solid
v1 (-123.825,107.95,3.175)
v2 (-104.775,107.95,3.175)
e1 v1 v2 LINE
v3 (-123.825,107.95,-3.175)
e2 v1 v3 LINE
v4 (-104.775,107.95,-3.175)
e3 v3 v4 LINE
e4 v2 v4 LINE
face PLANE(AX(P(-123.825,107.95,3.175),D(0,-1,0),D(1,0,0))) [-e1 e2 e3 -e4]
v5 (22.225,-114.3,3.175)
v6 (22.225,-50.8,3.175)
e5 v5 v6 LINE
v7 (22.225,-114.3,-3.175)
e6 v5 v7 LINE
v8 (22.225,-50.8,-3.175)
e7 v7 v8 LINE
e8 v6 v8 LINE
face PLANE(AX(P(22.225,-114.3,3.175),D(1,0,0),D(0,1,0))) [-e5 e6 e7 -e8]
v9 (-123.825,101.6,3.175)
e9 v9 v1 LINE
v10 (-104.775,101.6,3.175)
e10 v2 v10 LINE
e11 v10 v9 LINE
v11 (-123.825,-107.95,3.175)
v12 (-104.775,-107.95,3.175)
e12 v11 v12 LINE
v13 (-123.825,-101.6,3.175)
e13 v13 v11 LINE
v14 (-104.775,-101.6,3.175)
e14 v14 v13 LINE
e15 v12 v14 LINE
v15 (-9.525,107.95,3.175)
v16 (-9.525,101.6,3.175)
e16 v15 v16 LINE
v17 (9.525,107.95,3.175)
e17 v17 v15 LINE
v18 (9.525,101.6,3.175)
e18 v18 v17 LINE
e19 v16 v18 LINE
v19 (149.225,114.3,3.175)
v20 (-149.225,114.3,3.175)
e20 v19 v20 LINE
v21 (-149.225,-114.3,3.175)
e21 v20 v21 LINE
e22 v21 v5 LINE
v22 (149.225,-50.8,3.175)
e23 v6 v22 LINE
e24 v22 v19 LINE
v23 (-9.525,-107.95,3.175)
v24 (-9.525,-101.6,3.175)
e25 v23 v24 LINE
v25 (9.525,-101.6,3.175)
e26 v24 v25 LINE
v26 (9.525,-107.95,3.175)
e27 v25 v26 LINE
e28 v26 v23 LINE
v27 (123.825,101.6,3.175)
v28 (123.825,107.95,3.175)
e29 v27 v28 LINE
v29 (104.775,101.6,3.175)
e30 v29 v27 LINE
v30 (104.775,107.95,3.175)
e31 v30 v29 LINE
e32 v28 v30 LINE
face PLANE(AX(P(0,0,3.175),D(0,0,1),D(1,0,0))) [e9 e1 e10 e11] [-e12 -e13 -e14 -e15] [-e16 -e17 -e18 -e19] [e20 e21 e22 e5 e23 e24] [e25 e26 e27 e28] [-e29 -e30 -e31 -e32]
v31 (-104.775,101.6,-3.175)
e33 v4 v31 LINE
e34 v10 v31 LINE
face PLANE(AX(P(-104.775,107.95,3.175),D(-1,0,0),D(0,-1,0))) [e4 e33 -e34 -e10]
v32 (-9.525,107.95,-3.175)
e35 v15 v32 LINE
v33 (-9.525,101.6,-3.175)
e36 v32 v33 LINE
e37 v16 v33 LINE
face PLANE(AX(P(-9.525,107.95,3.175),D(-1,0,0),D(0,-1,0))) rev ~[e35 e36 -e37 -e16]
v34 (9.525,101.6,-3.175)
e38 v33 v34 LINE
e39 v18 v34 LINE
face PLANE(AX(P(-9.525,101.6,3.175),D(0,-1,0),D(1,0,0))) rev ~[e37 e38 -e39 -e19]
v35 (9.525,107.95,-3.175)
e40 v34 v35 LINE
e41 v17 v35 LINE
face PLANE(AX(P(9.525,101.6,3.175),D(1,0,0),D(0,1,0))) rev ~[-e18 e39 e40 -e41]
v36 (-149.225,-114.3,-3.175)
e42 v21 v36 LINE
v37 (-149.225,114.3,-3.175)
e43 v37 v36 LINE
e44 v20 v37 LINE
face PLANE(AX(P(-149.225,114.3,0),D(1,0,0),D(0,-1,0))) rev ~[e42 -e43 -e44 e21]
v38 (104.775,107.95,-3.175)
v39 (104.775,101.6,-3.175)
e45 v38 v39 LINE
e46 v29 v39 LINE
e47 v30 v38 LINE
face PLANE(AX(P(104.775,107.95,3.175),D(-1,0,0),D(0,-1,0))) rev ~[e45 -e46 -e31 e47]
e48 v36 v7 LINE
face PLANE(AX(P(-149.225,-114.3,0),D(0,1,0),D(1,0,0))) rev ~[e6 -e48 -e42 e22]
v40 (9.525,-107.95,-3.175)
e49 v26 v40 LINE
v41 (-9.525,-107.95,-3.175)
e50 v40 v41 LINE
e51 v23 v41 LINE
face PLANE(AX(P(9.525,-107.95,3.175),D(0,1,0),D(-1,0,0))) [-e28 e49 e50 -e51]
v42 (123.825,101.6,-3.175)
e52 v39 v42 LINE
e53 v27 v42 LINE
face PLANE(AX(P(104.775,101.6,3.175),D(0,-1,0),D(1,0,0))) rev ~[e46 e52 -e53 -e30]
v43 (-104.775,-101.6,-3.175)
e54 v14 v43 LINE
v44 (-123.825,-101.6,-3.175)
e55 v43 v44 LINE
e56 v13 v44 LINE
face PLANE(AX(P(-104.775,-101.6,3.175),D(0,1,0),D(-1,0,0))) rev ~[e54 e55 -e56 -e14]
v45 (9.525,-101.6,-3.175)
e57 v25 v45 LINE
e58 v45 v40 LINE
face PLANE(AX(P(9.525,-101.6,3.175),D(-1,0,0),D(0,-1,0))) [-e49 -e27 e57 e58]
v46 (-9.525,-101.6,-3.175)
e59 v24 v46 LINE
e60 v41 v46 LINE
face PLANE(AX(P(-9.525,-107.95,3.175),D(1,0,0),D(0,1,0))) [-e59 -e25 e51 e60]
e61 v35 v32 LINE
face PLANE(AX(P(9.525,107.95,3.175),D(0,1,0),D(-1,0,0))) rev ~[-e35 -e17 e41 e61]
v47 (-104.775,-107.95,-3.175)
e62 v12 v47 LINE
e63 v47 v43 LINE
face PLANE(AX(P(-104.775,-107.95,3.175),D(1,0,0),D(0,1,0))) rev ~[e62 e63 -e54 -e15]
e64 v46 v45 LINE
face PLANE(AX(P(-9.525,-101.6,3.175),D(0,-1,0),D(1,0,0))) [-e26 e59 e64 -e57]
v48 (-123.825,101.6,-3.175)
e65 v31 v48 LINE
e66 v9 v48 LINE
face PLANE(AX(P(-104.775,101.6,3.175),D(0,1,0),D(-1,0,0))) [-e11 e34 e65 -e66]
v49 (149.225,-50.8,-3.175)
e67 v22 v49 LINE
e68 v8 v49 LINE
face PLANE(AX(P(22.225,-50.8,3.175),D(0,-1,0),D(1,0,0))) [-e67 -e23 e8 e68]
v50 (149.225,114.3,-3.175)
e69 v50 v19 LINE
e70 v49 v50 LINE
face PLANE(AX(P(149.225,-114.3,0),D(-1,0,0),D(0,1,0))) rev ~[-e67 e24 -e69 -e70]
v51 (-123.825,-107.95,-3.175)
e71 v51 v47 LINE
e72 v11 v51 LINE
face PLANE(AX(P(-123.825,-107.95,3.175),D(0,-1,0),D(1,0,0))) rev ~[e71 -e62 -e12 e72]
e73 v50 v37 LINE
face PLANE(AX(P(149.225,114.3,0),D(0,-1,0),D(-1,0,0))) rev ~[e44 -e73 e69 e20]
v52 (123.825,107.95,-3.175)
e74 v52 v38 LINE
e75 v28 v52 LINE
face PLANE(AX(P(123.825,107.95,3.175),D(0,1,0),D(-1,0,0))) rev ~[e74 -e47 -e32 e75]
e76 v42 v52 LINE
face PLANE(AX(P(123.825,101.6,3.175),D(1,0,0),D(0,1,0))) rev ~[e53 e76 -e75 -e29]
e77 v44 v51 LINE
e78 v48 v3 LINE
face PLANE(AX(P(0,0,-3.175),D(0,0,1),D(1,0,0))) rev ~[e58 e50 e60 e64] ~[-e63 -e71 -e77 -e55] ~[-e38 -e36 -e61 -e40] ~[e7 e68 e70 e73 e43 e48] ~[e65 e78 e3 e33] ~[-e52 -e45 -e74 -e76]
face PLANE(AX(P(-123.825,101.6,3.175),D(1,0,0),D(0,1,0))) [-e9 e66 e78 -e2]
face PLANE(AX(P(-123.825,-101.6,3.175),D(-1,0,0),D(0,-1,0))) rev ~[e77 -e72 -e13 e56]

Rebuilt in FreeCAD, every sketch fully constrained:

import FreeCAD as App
import Part
import Sketcher
from FreeCAD import Vector
Q = App.Units.Quantity


def add_polygon(sketch, points):
    """Adds a closed chain of lines whose ends are joined by coincident constraints."""
    first, n = sketch.GeometryCount, len(points)
    for a, b in zip(points, points[1:] + points[:1]):
        sketch.addGeometry(Part.LineSegment(App.Vector(*a, 0), App.Vector(*b, 0)), False)
    for i in range(n):
        sketch.addConstraint(Sketcher.Constraint("Coincident", first + i, 2, first + (i + 1) % n, 1))

doc = App.newDocument("Part")
body = doc.addObject("PartDesign::Body", "Body")

# Sketch on XY plane
sketch1 = body.newObject("Sketcher::SketchObject", "Sketch")
sketch1.AttachmentSupport = (doc.getObject("XY_Plane"), [""])
sketch1.MapMode = "FlatFace"
add_polygon(sketch1, [(-149, 114), (-149, -114), (149, -114), (149, 114)])  # lines 0-3
sketch1.addConstraint(Sketcher.Constraint("Vertical", 0))
sketch1.addConstraint(Sketcher.Constraint("Horizontal", 1))
sketch1.addConstraint(Sketcher.Constraint("Vertical", 2))
sketch1.addConstraint(Sketcher.Constraint("Horizontal", 3))
sketch1.addConstraint(Sketcher.Constraint("Symmetric", 0, 2, 2, 2, -1, 1))
sketch1.addConstraint(Sketcher.Constraint("DistanceY", 0, 2, 0, 1, Q("9 in")))
sketch1.addConstraint(Sketcher.Constraint("DistanceX", 0, 2, -1, 1, Q("5.875 in")))
pad1 = body.newObject("PartDesign::Pad", "Pad")
pad1.Profile = sketch1
pad1.Length = Q("0.25 in")
pad1.Midplane = True

# Sketch on XY plane
sketch2 = body.newObject("Sketcher::SketchObject", "Sketch001")
sketch2.AttachmentSupport = (doc.getObject("XY_Plane"), [""])
sketch2.MapMode = "FlatFace"
sketch2.AttachmentOffset = App.Placement(Vector(0, 0, 0.125 * 25.4), App.Rotation())
add_polygon(sketch2, [(-105, 108), (-124, 108), (-124, 102), (-105, 102)])  # lines 0-3
add_polygon(sketch2, [(10, 102), (10, 108), (-10, 108), (-10, 102)])  # lines 4-7
add_polygon(sketch2, [(124, 102), (124, 108), (105, 108), (105, 102)])  # lines 8-11
add_polygon(sketch2, [(-124, -102), (-124, -108), (-105, -108), (-105, -102)])  # lines 12-15
add_polygon(sketch2, [(-10, -108), (10, -108), (10, -102), (-10, -102)])  # lines 16-19
add_polygon(sketch2, [(105, -108), (124, -108), (124, -102), (105, -102)])  # lines 20-23
sketch2.addConstraint(Sketcher.Constraint("Horizontal", 0))
sketch2.addConstraint(Sketcher.Constraint("Vertical", 1))
sketch2.addConstraint(Sketcher.Constraint("Horizontal", 2))
sketch2.addConstraint(Sketcher.Constraint("Vertical", 3))
sketch2.addConstraint(Sketcher.Constraint("Vertical", 4))
sketch2.addConstraint(Sketcher.Constraint("Horizontal", 5))
sketch2.addConstraint(Sketcher.Constraint("Vertical", 6))
sketch2.addConstraint(Sketcher.Constraint("Horizontal", 7))
sketch2.addConstraint(Sketcher.Constraint("Vertical", 8))
sketch2.addConstraint(Sketcher.Constraint("Horizontal", 9))
sketch2.addConstraint(Sketcher.Constraint("Vertical", 10))
sketch2.addConstraint(Sketcher.Constraint("Horizontal", 11))
sketch2.addConstraint(Sketcher.Constraint("Vertical", 12))
sketch2.addConstraint(Sketcher.Constraint("Horizontal", 13))
sketch2.addConstraint(Sketcher.Constraint("Vertical", 14))
sketch2.addConstraint(Sketcher.Constraint("Horizontal", 15))
sketch2.addConstraint(Sketcher.Constraint("Horizontal", 16))
sketch2.addConstraint(Sketcher.Constraint("Vertical", 17))
sketch2.addConstraint(Sketcher.Constraint("Horizontal", 18))
sketch2.addConstraint(Sketcher.Constraint("Vertical", 19))
sketch2.addConstraint(Sketcher.Constraint("Horizontal", 20))
sketch2.addConstraint(Sketcher.Constraint("Vertical", 21))
sketch2.addConstraint(Sketcher.Constraint("Horizontal", 22))
sketch2.addConstraint(Sketcher.Constraint("Vertical", 23))
sketch2.addConstraint(Sketcher.Constraint("Symmetric", 8, 2, 12, 2, -1, 1))
sketch2.addConstraint(Sketcher.Constraint("Symmetric", 10, 2, 14, 2, -1, 1))
sketch2.addConstraint(Sketcher.Constraint("Symmetric", 5, 2, 16, 2, -1, 1))
sketch2.addConstraint(Sketcher.Constraint("Symmetric", 7, 2, 18, 2, -1, 1))
sketch2.addConstraint(Sketcher.Constraint("Symmetric", 0, 2, 20, 2, -1, 1))
sketch2.addConstraint(Sketcher.Constraint("Symmetric", 2, 2, 22, 2, -1, 1))
sketch2.addConstraint(Sketcher.Constraint("Symmetric", 0, 2, 8, 2, -2))
sketch2.addConstraint(Sketcher.Constraint("Symmetric", 2, 2, 10, 2, -2))
sketch2.addConstraint(Sketcher.Constraint("Horizontal", 3, 2, 4, 2))
sketch2.addConstraint(Sketcher.Constraint("Horizontal", 2, 2, 6, 2))
sketch2.addConstraint(Sketcher.Constraint("Vertical", 7, 2, 16, 2))
sketch2.addConstraint(Sketcher.Constraint("Equal", 2, 5))
sketch2.addConstraint(Sketcher.Constraint("DistanceX", 0, 2, -1, 1, Q("4.875 in")))
sketch2.addConstraint(Sketcher.Constraint("DistanceX", 2, 2, -1, 1, Q("4.125 in")))
sketch2.addConstraint(Sketcher.Constraint("DistanceY", -1, 1, 1, 2, Q("4 in")))
sketch2.addConstraint(Sketcher.Constraint("DistanceY", 1, 2, 1, 1, Q("0.25 in")))
pocket1 = body.newObject("PartDesign::Pocket", "Pocket")
pocket1.Profile = sketch2
pocket1.Type = "ThroughAll"

# Sketch on XY plane
sketch3 = body.newObject("Sketcher::SketchObject", "Sketch002")
sketch3.AttachmentSupport = (doc.getObject("XY_Plane"), [""])
sketch3.MapMode = "FlatFace"
sketch3.AttachmentOffset = App.Placement(Vector(0, 0, 0.125 * 25.4), App.Rotation())
add_polygon(sketch3, [(22, -114), (149, -114), (149, -51), (22, -51)])  # lines 0-3
sketch3.addConstraint(Sketcher.Constraint("Horizontal", 0))
sketch3.addConstraint(Sketcher.Constraint("Vertical", 1))
sketch3.addConstraint(Sketcher.Constraint("Horizontal", 2))
sketch3.addConstraint(Sketcher.Constraint("Vertical", 3))
sketch3.addConstraint(Sketcher.Constraint("DistanceX", 0, 1, 0, 2, Q("5 in")))
sketch3.addConstraint(Sketcher.Constraint("DistanceY", 1, 1, 1, 2, Q("2.5 in")))
sketch3.addConstraint(Sketcher.Constraint("DistanceX", -1, 1, 0, 2, Q("5.875 in")))
sketch3.addConstraint(Sketcher.Constraint("DistanceY", 1, 2, -1, 1, Q("2 in")))
pocket2 = body.newObject("PartDesign::Pocket", "Pocket001")
pocket2.Profile = sketch3
pocket2.Type = "ThroughAll"

doc.recompute()
